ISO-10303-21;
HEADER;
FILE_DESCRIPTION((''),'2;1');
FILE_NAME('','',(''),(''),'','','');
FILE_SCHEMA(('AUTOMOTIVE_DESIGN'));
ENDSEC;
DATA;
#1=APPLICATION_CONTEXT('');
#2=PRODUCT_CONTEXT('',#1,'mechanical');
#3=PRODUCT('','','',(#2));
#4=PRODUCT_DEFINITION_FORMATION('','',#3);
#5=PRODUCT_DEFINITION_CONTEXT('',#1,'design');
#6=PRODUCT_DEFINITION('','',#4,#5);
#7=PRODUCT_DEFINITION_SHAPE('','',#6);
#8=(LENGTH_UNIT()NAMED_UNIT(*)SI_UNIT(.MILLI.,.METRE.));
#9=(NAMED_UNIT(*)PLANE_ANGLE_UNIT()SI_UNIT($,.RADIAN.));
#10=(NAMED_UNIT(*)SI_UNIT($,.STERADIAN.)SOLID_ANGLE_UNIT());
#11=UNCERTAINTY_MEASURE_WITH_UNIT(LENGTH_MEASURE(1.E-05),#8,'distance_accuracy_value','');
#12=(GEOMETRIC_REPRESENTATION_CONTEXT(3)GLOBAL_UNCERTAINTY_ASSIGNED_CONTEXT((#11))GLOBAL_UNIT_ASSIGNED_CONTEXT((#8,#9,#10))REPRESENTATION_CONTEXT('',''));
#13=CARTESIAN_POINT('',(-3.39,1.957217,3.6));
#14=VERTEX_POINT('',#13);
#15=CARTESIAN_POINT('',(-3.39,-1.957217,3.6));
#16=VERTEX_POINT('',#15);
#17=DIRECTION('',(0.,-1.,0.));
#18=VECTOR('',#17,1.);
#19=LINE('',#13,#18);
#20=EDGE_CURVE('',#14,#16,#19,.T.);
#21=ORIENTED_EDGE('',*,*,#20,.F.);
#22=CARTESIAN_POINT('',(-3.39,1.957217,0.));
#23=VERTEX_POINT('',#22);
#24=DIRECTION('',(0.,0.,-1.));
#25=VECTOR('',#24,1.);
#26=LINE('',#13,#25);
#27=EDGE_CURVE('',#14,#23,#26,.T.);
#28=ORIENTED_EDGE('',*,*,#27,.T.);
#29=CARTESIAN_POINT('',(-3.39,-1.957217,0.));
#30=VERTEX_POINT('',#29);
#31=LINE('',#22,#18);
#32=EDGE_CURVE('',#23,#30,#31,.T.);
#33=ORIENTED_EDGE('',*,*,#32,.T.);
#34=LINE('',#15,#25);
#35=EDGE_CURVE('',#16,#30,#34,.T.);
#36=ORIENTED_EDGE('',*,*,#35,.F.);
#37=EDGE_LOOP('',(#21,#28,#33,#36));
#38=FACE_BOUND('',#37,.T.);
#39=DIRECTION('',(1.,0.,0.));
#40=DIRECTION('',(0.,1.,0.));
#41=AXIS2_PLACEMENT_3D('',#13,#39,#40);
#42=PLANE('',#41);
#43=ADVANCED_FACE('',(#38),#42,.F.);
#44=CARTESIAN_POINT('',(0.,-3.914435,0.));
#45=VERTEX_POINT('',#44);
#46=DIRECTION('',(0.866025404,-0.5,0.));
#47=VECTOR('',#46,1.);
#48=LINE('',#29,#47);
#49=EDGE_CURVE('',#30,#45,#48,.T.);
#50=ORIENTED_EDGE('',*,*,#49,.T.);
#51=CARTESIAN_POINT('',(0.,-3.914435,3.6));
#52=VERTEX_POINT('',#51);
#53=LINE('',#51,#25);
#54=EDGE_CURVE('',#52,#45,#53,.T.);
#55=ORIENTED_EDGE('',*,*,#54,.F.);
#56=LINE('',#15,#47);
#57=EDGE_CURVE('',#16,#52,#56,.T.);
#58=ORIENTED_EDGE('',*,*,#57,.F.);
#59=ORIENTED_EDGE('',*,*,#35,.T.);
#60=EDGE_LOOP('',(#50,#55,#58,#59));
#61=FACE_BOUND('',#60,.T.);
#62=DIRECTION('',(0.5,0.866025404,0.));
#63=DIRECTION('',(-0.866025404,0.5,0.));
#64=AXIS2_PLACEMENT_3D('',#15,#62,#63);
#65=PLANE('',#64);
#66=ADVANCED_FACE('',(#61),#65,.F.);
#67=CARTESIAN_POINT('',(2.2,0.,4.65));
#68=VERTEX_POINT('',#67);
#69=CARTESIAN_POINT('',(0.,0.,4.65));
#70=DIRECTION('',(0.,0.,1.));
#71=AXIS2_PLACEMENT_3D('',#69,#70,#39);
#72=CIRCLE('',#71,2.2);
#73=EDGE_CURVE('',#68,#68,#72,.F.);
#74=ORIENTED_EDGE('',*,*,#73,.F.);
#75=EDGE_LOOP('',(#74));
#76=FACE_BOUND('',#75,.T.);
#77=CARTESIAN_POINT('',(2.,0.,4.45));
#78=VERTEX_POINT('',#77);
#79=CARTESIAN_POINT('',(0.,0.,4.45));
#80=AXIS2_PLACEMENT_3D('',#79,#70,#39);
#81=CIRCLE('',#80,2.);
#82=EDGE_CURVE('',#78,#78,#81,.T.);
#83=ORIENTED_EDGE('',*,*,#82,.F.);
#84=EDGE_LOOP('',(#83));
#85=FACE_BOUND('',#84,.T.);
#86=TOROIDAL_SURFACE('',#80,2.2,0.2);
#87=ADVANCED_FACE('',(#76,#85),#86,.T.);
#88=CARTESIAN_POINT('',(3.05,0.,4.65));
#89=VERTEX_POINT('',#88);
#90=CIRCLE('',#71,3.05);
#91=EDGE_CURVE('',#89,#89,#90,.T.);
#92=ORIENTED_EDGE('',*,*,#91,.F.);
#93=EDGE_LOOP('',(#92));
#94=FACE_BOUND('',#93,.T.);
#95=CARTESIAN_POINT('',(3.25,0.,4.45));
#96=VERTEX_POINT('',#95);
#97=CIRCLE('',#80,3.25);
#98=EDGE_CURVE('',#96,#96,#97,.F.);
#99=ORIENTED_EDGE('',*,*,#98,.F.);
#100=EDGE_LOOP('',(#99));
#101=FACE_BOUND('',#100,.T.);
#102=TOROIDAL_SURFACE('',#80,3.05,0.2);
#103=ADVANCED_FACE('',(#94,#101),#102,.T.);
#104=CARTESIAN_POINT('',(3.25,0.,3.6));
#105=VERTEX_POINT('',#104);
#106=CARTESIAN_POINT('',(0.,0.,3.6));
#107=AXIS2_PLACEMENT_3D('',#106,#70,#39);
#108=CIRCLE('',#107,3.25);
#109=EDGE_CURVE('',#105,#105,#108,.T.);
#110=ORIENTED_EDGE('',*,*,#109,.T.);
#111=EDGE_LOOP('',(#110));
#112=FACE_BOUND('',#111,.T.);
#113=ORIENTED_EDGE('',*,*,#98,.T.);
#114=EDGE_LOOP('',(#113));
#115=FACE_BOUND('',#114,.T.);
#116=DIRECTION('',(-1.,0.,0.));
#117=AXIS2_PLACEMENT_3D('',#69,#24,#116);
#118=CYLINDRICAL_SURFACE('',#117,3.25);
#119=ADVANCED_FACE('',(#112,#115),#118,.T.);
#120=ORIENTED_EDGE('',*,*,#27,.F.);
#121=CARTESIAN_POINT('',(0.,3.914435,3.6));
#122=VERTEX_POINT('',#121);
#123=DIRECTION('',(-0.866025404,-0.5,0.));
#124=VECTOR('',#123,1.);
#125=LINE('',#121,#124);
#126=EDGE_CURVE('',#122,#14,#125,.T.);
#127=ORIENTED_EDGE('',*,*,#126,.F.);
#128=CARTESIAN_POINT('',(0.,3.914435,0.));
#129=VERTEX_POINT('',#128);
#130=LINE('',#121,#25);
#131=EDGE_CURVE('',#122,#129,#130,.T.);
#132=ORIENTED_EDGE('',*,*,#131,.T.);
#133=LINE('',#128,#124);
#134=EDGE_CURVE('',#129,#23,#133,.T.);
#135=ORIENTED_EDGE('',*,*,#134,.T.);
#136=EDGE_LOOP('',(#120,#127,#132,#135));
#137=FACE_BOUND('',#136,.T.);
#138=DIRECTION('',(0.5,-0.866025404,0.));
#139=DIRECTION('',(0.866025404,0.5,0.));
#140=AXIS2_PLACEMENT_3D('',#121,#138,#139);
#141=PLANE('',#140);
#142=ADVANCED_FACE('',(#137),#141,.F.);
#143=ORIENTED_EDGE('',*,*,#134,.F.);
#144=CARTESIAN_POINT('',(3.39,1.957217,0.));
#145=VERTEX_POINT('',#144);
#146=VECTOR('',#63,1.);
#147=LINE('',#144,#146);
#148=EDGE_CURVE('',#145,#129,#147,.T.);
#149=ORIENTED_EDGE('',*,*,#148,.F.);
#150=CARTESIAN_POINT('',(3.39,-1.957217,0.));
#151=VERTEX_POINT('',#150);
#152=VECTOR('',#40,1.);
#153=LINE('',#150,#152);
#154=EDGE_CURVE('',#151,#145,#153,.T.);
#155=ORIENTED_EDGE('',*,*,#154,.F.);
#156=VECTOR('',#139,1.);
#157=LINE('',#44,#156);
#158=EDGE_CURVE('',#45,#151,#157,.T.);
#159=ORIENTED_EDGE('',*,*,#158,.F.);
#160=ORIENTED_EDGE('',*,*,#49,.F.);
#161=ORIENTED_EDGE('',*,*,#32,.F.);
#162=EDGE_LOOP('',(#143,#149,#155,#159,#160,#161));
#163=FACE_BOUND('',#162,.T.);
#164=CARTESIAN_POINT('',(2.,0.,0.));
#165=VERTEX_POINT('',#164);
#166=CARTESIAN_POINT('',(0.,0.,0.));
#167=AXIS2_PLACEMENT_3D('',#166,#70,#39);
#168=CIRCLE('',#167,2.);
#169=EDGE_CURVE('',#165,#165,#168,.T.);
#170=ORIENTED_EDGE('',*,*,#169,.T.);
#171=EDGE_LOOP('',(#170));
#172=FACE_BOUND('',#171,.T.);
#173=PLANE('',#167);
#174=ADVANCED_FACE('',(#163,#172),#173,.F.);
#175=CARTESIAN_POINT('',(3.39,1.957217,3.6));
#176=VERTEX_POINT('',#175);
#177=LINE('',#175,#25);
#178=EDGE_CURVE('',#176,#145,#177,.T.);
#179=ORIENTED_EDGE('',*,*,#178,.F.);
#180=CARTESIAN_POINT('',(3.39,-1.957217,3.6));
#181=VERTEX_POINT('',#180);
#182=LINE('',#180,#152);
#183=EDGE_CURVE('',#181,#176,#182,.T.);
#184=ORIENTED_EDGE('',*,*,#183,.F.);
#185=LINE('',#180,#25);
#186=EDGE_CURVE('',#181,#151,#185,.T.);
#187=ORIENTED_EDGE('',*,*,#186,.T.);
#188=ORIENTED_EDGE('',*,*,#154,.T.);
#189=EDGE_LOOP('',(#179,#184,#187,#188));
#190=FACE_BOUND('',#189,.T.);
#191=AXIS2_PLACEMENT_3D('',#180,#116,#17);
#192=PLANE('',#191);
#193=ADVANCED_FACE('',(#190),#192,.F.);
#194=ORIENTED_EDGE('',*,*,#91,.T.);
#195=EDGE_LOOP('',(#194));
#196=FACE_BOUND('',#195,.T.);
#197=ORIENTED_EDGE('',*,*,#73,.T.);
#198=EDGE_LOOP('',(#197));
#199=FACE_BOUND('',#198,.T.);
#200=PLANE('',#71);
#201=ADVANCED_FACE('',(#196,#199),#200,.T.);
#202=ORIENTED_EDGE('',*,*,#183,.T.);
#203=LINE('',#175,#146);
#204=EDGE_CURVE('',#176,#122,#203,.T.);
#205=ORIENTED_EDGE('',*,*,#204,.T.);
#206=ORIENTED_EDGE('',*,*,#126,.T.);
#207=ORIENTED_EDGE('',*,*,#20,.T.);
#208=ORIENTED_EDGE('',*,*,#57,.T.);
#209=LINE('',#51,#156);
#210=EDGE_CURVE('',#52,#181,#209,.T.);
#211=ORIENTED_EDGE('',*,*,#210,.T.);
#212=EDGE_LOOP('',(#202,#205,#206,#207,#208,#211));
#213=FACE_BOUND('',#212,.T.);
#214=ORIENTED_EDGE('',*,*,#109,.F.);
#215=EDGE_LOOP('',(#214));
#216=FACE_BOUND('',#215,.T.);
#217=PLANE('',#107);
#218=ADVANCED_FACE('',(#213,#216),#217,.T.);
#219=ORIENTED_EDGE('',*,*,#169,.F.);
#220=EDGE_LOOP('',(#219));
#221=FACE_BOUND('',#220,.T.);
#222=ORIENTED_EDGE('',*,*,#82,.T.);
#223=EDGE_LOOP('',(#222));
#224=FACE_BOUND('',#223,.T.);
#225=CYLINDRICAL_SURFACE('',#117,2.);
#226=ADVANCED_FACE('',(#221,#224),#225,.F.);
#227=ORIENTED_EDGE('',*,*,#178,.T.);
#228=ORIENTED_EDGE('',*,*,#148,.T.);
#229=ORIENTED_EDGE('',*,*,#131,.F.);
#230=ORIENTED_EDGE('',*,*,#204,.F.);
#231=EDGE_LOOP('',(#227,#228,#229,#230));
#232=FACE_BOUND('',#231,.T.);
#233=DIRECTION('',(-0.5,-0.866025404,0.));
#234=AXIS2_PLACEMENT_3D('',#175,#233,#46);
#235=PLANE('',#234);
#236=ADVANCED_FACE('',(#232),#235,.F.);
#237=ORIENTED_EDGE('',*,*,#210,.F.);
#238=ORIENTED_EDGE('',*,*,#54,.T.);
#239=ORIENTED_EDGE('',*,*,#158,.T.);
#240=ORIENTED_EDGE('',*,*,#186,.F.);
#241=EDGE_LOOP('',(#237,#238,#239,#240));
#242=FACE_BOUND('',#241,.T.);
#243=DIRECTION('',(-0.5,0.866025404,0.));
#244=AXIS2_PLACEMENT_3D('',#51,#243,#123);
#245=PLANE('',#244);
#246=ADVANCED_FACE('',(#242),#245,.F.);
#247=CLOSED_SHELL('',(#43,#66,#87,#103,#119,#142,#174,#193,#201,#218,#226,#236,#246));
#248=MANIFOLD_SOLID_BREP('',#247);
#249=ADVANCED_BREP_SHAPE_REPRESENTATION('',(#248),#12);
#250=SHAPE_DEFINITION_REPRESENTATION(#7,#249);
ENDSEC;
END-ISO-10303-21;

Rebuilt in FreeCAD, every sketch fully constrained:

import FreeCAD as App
import Part
import Sketcher
from FreeCAD import Vector
Q = App.Units.Quantity


def edges_at(feature, points):
    """Names of the edges that pass closest to the given points."""
    edges = feature.Shape.Edges
    near = lambda p: min(range(len(edges)), key=lambda i: edges[i].distToShape(Part.Vertex(*p))[0])
    return sorted({f"Edge{near(p) + 1}" for p in points})


def add_polygon(sketch, points):
    """Adds a closed chain of lines whose ends are joined by coincident constraints."""
    first, n = sketch.GeometryCount, len(points)
    for a, b in zip(points, points[1:] + points[:1]):
        sketch.addGeometry(Part.LineSegment(App.Vector(*a, 0), App.Vector(*b, 0)), False)
    for i in range(n):
        sketch.addConstraint(Sketcher.Constraint("Coincident", first + i, 2, first + (i + 1) % n, 1))

doc = App.newDocument("Part")
params = doc.addObject("Spreadsheet::Sheet", "Params")
for row, (alias, value) in enumerate([
    ("pad1_length", "3.6 mm"),
    ("sketch2_diameter", "4 mm"),
    ("sketch2_diameter2", "6.5 mm"),
    ("pad2_length", "1.05 mm"),
    ("sketch3_diameter", "4 mm"),
    ("fillet_radius", "0.2 mm"),
    ("fillet2_radius", "0.2 mm"),
], start=1):
    params.set(f"A{row}", alias)
    params.set(f"B{row}", "=" + value)
    params.setAlias(f"B{row}", alias)

body = doc.addObject("PartDesign::Body", "Body")

sketch1 = doc.addObject("Sketcher::SketchObject", "Sketch")
body.addObject(sketch1)
sketch1.AttachmentSupport = (doc.XY_Plane, [""])
sketch1.MapMode = "FlatFace"
add_polygon(sketch1, [(-3.39, -1.957217), (0, -3.914435), (3.39, -1.957217), (3.39, 1.957217), (0, 3.914435), (-3.39, 1.957217)])
sketch1.addConstraint(Sketcher.Constraint("Vertical", 2))
sketch1.addConstraint(Sketcher.Constraint("Vertical", 5))
sketch1.addConstraint(Sketcher.Constraint("Symmetric", 0, 2, 3, 2, -1, 1))
sketch1.addConstraint(Sketcher.Constraint("Symmetric", 1, 2, 4, 2, -1, 1))
sketch1.addConstraint(Sketcher.Constraint("PointOnObject", 0, 2, -2))
sketch1.addConstraint(Sketcher.Constraint("Parallel", 0, 3))
sketch1.addConstraint(Sketcher.Constraint("Horizontal", 2, 2, 4, 2))
sketch1.addConstraint(Sketcher.Constraint("Angle", 0, Q("-30 deg")))
sketch1.addConstraint(Sketcher.Constraint("DistanceX", -1, 1, 1, 2, Q("3.39 mm")))
sketch1.addConstraint(Sketcher.Constraint("DistanceY", 2, 1, 2, 2, Q("3.914435 mm")))
pad1 = doc.addObject("PartDesign::Pad", "Pad")
body.addObject(pad1)
pad1.Profile = sketch1
pad1.setExpression("Length", "Params.pad1_length")

sketch2 = doc.addObject("Sketcher::SketchObject", "Sketch001")
body.addObject(sketch2)
sketch2.AttachmentSupport = (doc.XY_Plane, [""])
sketch2.MapMode = "FlatFace"
sketch2.AttachmentOffset = App.Placement(Vector(0, 0, 3.6), App.Rotation())
sketch2.addGeometry(Part.Circle(Vector(0, 0, 0), Vector(0, 0, 1), 3.25), False)
sketch2.addGeometry(Part.Circle(Vector(0, 0, 0), Vector(0, 0, 1), 2), False)
sketch2.addConstraint(Sketcher.Constraint("Coincident", 0, 3, -1, 1))
sketch2.addConstraint(Sketcher.Constraint("Coincident", 1, 3, -1, 1))
sketch2.addConstraint(Sketcher.Constraint("Diameter", 1, Q("4 mm")))
sketch2.addConstraint(Sketcher.Constraint("Diameter", 0, Q("6.5 mm")))
sketch2.setExpression("Constraints[2]", "Params.sketch2_diameter")
sketch2.setExpression("Constraints[3]", "Params.sketch2_diameter2")
pad2 = doc.addObject("PartDesign::Pad", "Pad001")
body.addObject(pad2)
pad2.Profile = sketch2
pad2.setExpression("Length", "Params.pad2_length")

sketch3 = doc.addObject("Sketcher::SketchObject", "Sketch002")
body.addObject(sketch3)
sketch3.AttachmentSupport = (doc.XY_Plane, [""])
sketch3.MapMode = "FlatFace"
sketch3.AttachmentOffset = App.Placement(Vector(0, 0, 3.6), App.Rotation())
sketch3.addGeometry(Part.Circle(Vector(0, 0, 0), Vector(0, 0, 1), 2), False)
sketch3.addConstraint(Sketcher.Constraint("Coincident", 0, 3, -1, 1))
sketch3.addConstraint(Sketcher.Constraint("Diameter", 0, Q("4 mm")))
sketch3.setExpression("Constraints[1]", "Params.sketch3_diameter")
pocket1 = doc.addObject("PartDesign::Pocket", "Pocket")
body.addObject(pocket1)
pocket1.Profile = sketch3
pocket1.Type = "ThroughAll"
doc.recompute()

fillet = doc.addObject("PartDesign::Fillet", "Fillet")
body.addObject(fillet)
fillet.Base = (pocket1, edges_at(pocket1, [(-2, 0, 4.65)]))
fillet.setExpression("Radius", "Params.fillet_radius")
doc.recompute()

fillet2 = doc.addObject("PartDesign::Fillet", "Fillet001")
body.addObject(fillet2)
fillet2.Base = (fillet, edges_at(fillet, [(-3.25, 0, 4.65)]))
fillet2.setExpression("Radius", "Params.fillet2_radius")

doc.recompute()
